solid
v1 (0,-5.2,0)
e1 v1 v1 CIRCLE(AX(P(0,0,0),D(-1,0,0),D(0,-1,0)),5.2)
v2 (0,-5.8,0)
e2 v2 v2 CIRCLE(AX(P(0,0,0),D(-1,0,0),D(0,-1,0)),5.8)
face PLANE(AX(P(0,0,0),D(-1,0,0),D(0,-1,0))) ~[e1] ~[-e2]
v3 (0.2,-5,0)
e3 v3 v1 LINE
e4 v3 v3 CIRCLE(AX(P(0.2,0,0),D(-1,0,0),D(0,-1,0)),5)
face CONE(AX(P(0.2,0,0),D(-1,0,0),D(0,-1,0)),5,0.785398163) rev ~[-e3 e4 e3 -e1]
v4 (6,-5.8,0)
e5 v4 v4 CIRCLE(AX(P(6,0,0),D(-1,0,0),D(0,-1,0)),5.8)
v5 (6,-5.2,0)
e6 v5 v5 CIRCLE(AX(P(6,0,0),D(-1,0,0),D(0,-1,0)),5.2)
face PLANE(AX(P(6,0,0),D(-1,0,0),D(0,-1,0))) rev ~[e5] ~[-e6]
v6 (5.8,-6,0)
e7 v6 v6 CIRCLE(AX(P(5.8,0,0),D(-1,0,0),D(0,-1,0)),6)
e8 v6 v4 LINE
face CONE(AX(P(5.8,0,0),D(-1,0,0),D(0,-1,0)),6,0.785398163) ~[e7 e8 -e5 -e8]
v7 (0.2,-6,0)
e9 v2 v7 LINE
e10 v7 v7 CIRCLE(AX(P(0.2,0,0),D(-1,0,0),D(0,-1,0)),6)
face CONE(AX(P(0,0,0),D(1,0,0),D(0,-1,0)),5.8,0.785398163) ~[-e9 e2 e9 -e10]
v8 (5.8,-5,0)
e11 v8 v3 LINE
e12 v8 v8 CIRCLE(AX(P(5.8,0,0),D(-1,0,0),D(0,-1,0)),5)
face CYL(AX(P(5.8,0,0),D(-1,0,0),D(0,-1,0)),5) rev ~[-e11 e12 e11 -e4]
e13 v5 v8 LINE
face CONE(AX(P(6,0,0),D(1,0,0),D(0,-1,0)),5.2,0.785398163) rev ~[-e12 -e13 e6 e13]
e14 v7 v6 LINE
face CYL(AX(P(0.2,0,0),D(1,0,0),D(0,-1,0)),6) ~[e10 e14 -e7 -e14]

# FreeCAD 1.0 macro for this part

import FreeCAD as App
import Part
import Sketcher
from FreeCAD import Vector
Q = App.Units.Quantity


def add_polygon(sketch, points):
    """Adds a closed chain of lines whose ends are joined by coincident constraints."""
    first, n = sketch.GeometryCount, len(points)
    for a, b in zip(points, points[1:] + points[:1]):
        sketch.addGeometry(Part.LineSegment(App.Vector(*a, 0), App.Vector(*b, 0)), False)
    for i in range(n):
        sketch.addConstraint(Sketcher.Constraint("Coincident", first + i, 2, first + (i + 1) % n, 1))

doc = App.newDocument("Part")
params = doc.addObject("Spreadsheet::Sheet", "Params")
for row, (alias, value) in enumerate([
    ("sketch1_width", "5.6 mm"),
    ("sketch1_height", "0.6 mm"),
    ("revolution_angle", "360 deg"),
], start=1):
    params.set(f"A{row}", alias)
    params.set(f"B{row}", "=" + value)
    params.setAlias(f"B{row}", alias)

body = doc.addObject("PartDesign::Body", "Body")

# Sketch on XY plane
sketch1 = body.newObject("Sketcher::SketchObject", "Sketch")
sketch1.AttachmentSupport = (doc.getObject("XY_Plane"), [""])
sketch1.MapMode = "FlatFace"
add_polygon(sketch1, [(0.2, -5), (0, -5.2), (0, -5.8), (0.2, -6), (5.8, -6), (6, -5.8), (6, -5.2), (5.8, -5)])  # lines 0-7
sketch1.addConstraint([
    Sketcher.Constraint("Vertical", 1),
    Sketcher.Constraint("Horizontal", 3),
    Sketcher.Constraint("Vertical", 5),
    Sketcher.Constraint("Horizontal", 7),
    Sketcher.Constraint("PointOnObject", 0, 2, -2),
    Sketcher.Constraint("Perpendicular", 0, 2),
    Sketcher.Constraint("Perpendicular", 2, 4),
    Sketcher.Constraint("Perpendicular", 4, 6),
    Sketcher.Constraint("Horizontal", 1, 2, 4, 2),
    Sketcher.Constraint("Horizontal", 0, 2, 5, 2),
    Sketcher.Constraint("Vertical", 3, 2, 6, 2),
    Sketcher.Constraint("Vertical", 2, 2, 7, 2),
    Sketcher.Constraint("DistanceX", 3, 1, 3, 2, Q("5.6 mm")),
    Sketcher.Constraint("DistanceY", 1, 2, 1, 1, Q("0.6 mm")),
    Sketcher.Constraint("DistanceY", 2, 2, -1, 1, Q("6 mm")),
    Sketcher.Constraint("DistanceX", -1, 1, 4, 2, Q("6 mm")),
])
sketch1.setExpression("Constraints[20]", "Params.sketch1_width")
sketch1.setExpression("Constraints[21]", "Params.sketch1_height")
revolution = body.newObject("PartDesign::Revolution", "Revolution")
revolution.Profile = sketch1
revolution.ReferenceAxis = (sketch1, ["H_Axis"])
revolution.setExpression("Angle", "Params.revolution_angle")

doc.recompute()
